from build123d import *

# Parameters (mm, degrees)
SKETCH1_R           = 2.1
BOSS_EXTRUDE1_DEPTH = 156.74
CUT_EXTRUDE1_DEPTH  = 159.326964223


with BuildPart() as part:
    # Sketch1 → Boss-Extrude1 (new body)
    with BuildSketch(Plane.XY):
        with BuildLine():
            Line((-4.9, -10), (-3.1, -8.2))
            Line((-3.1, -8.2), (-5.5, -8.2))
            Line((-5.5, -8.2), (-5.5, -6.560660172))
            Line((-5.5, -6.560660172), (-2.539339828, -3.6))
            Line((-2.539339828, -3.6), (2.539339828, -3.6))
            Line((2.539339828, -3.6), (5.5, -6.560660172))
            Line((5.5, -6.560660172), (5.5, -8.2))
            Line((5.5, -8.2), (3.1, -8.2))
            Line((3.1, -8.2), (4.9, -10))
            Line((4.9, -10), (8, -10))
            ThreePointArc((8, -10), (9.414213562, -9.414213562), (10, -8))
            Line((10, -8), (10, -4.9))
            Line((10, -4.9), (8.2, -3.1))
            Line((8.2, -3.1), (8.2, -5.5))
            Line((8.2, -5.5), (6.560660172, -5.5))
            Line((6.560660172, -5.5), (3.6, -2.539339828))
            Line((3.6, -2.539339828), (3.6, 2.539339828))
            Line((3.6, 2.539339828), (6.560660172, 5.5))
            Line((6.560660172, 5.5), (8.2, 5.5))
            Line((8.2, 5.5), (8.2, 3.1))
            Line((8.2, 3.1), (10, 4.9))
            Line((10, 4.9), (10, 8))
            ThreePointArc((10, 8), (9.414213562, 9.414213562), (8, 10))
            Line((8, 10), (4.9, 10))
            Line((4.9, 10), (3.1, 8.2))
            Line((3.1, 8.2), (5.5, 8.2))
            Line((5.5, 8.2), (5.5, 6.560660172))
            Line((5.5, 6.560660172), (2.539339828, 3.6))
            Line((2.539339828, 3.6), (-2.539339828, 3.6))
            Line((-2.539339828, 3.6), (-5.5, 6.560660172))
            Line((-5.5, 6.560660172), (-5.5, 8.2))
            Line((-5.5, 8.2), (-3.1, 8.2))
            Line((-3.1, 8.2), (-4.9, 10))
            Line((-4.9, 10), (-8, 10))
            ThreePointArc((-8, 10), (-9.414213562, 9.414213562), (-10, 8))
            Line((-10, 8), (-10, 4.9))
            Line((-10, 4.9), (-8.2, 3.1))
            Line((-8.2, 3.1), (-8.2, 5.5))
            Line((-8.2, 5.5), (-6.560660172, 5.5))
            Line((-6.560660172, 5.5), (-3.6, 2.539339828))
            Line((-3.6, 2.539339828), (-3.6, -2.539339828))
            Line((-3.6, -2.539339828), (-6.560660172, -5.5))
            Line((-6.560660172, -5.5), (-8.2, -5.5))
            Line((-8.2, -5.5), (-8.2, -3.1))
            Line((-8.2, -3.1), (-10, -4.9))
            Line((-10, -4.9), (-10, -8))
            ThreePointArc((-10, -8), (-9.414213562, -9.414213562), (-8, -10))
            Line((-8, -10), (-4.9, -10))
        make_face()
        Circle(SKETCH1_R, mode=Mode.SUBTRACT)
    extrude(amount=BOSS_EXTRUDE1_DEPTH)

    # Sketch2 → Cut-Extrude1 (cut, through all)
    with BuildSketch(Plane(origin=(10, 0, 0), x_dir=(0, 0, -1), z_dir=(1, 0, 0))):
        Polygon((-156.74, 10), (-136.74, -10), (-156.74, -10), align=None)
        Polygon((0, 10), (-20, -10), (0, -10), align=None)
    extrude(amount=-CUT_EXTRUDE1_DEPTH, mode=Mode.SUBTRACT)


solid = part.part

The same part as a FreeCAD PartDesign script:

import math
import FreeCAD as App
import Part
import Sketcher

V = App.Vector


def add_polygon(sketch, points):
    """Adds a closed chain of lines whose ends are joined by coincident constraints."""
    first, n = sketch.GeometryCount, len(points)
    for a, b in zip(points, points[1:] + points[:1]):
        sketch.addGeometry(Part.LineSegment(App.Vector(*a, 0), App.Vector(*b, 0)), False)
    for i in range(n):
        sketch.addConstraint(Sketcher.Constraint("Coincident", first + i, 2, first + (i + 1) % n, 1))

doc = App.newDocument("Part")
body = doc.addObject("PartDesign::Body", "Body")

sketch1 = body.newObject("Sketcher::SketchObject", "Sketch")
sketch1.AttachmentSupport = (doc.getObject("XY_Plane"), [""])
sketch1.MapMode = "FlatFace"
sketch1.addGeometry(Part.LineSegment(V(-4.9, -10, 0), V(-3.1, -8.2, 0)), False)
sketch1.addGeometry(Part.LineSegment(V(-3.1, -8.2, 0), V(-5.5, -8.2, 0)), False)
sketch1.addGeometry(Part.LineSegment(V(-5.5, -8.2, 0), V(-5.5, -6.6, 0)), False)
sketch1.addGeometry(Part.LineSegment(V(-5.5, -6.6, 0), V(-2.5, -3.6, 0)), False)
sketch1.addGeometry(Part.LineSegment(V(-2.5, -3.6, 0), V(2.5, -3.6, 0)), False)
sketch1.addGeometry(Part.LineSegment(V(2.5, -3.6, 0), V(5.5, -6.6, 0)), False)
sketch1.addGeometry(Part.LineSegment(V(5.5, -6.6, 0), V(5.5, -8.2, 0)), False)
sketch1.addGeometry(Part.LineSegment(V(5.5, -8.2, 0), V(3.1, -8.2, 0)), False)
sketch1.addGeometry(Part.LineSegment(V(3.1, -8.2, 0), V(4.9, -10, 0)), False)
sketch1.addGeometry(Part.LineSegment(V(4.9, -10, 0), V(8, -10, 0)), False)
sketch1.addGeometry(Part.ArcOfCircle(Part.Circle(V(8, -8, 0), V(0, 0, 1), 2), math.radians(-90), math.radians(0)), False)
sketch1.addGeometry(Part.LineSegment(V(10, -8, 0), V(10, -4.9, 0)), False)
sketch1.addGeometry(Part.LineSegment(V(10, -4.9, 0), V(8.2, -3.1, 0)), False)
sketch1.addGeometry(Part.LineSegment(V(8.2, -3.1, 0), V(8.2, -5.5, 0)), False)
sketch1.addGeometry(Part.LineSegment(V(8.2, -5.5, 0), V(6.6, -5.5, 0)), False)
sketch1.addGeometry(Part.LineSegment(V(6.6, -5.5, 0), V(3.6, -2.5, 0)), False)
sketch1.addGeometry(Part.LineSegment(V(3.6, -2.5, 0), V(3.6, 2.5, 0)), False)
sketch1.addGeometry(Part.LineSegment(V(3.6, 2.5, 0), V(6.6, 5.5, 0)), False)
sketch1.addGeometry(Part.LineSegment(V(6.6, 5.5, 0), V(8.2, 5.5, 0)), False)
sketch1.addGeometry(Part.LineSegment(V(8.2, 5.5, 0), V(8.2, 3.1, 0)), False)
sketch1.addGeometry(Part.LineSegment(V(8.2, 3.1, 0), V(10, 4.9, 0)), False)
sketch1.addGeometry(Part.LineSegment(V(10, 4.9, 0), V(10, 8, 0)), False)
sketch1.addGeometry(Part.ArcOfCircle(Part.Circle(V(8, 8, 0), V(0, 0, 1), 2), math.radians(0), math.radians(90)), False)
sketch1.addGeometry(Part.LineSegment(V(8, 10, 0), V(4.9, 10, 0)), False)
sketch1.addGeometry(Part.LineSegment(V(4.9, 10, 0), V(3.1, 8.2, 0)), False)
sketch1.addGeometry(Part.LineSegment(V(3.1, 8.2, 0), V(5.5, 8.2, 0)), False)
sketch1.addGeometry(Part.LineSegment(V(5.5, 8.2, 0), V(5.5, 6.6, 0)), False)
sketch1.addGeometry(Part.LineSegment(V(5.5, 6.6, 0), V(2.5, 3.6, 0)), False)
sketch1.addGeometry(Part.LineSegment(V(2.5, 3.6, 0), V(-2.5, 3.6, 0)), False)
sketch1.addGeometry(Part.LineSegment(V(-2.5, 3.6, 0), V(-5.5, 6.6, 0)), False)
sketch1.addGeometry(Part.LineSegment(V(-5.5, 6.6, 0), V(-5.5, 8.2, 0)), False)
sketch1.addGeometry(Part.LineSegment(V(-5.5, 8.2, 0), V(-3.1, 8.2, 0)), False)
sketch1.addGeometry(Part.LineSegment(V(-3.1, 8.2, 0), V(-4.9, 10, 0)), False)
sketch1.addGeometry(Part.LineSegment(V(-4.9, 10, 0), V(-8, 10, 0)), False)
sketch1.addGeometry(Part.ArcOfCircle(Part.Circle(V(-8, 8, 0), V(0, 0, 1), 2), math.radians(90), math.radians(180)), False)
sketch1.addGeometry(Part.LineSegment(V(-10, 8, 0), V(-10, 4.9, 0)), False)
sketch1.addGeometry(Part.LineSegment(V(-10, 4.9, 0), V(-8.2, 3.1, 0)), False)
sketch1.addGeometry(Part.LineSegment(V(-8.2, 3.1, 0), V(-8.2, 5.5, 0)), False)
sketch1.addGeometry(Part.LineSegment(V(-8.2, 5.5, 0), V(-6.6, 5.5, 0)), False)
sketch1.addGeometry(Part.LineSegment(V(-6.6, 5.5, 0), V(-3.6, 2.5, 0)), False)
sketch1.addGeometry(Part.LineSegment(V(-3.6, 2.5, 0), V(-3.6, -2.5, 0)), False)
sketch1.addGeometry(Part.LineSegment(V(-3.6, -2.5, 0), V(-6.6, -5.5, 0)), False)
sketch1.addGeometry(Part.LineSegment(V(-6.6, -5.5, 0), V(-8.2, -5.5, 0)), False)
sketch1.addGeometry(Part.LineSegment(V(-8.2, -5.5, 0), V(-8.2, -3.1, 0)), False)
sketch1.addGeometry(Part.LineSegment(V(-8.2, -3.1, 0), V(-10, -4.9, 0)), False)
sketch1.addGeometry(Part.LineSegment(V(-10, -4.9, 0), V(-10, -8, 0)), False)
sketch1.addGeometry(Part.ArcOfCircle(Part.Circle(V(-8, -8, 0), V(0, 0, 1), 2), math.radians(-180), math.radians(-90)), False)
sketch1.addGeometry(Part.LineSegment(V(-8, -10, 0), V(-4.9, -10, 0)), False)
sketch1.addGeometry(Part.Circle(V(0, 0, 0), V(0, 0, 1), 2.1), False)
sketch1.addConstraint(Sketcher.Constraint("Coincident", 0, 2, 1, 1))
sketch1.addConstraint(Sketcher.Constraint("Coincident", 1, 2, 2, 1))
sketch1.addConstraint(Sketcher.Constraint("Coincident", 2, 2, 3, 1))
sketch1.addConstraint(Sketcher.Constraint("Coincident", 3, 2, 4, 1))
sketch1.addConstraint(Sketcher.Constraint("Coincident", 4, 2, 5, 1))
sketch1.addConstraint(Sketcher.Constraint("Coincident", 5, 2, 6, 1))
sketch1.addConstraint(Sketcher.Constraint("Coincident", 6, 2, 7, 1))
sketch1.addConstraint(Sketcher.Constraint("Coincident", 7, 2, 8, 1))
sketch1.addConstraint(Sketcher.Constraint("Coincident", 8, 2, 9, 1))
sketch1.addConstraint(Sketcher.Constraint("Tangent", 9, 2, 10, 1))
sketch1.addConstraint(Sketcher.Constraint("Tangent", 10, 2, 11, 1))
sketch1.addConstraint(Sketcher.Constraint("Coincident", 11, 2, 12, 1))
sketch1.addConstraint(Sketcher.Constraint("Coincident", 12, 2, 13, 1))
sketch1.addConstraint(Sketcher.Constraint("Coincident", 13, 2, 14, 1))
sketch1.addConstraint(Sketcher.Constraint("Coincident", 14, 2, 15, 1))
sketch1.addConstraint(Sketcher.Constraint("Coincident", 15, 2, 16, 1))
sketch1.addConstraint(Sketcher.Constraint("Coincident", 16, 2, 17, 1))
sketch1.addConstraint(Sketcher.Constraint("Coincident", 17, 2, 18, 1))
sketch1.addConstraint(Sketcher.Constraint("Coincident", 18, 2, 19, 1))
sketch1.addConstraint(Sketcher.Constraint("Coincident", 19, 2, 20, 1))
sketch1.addConstraint(Sketcher.Constraint("Coincident", 20, 2, 21, 1))
sketch1.addConstraint(Sketcher.Constraint("Tangent", 21, 2, 22, 1))
sketch1.addConstraint(Sketcher.Constraint("Tangent", 22, 2, 23, 1))
sketch1.addConstraint(Sketcher.Constraint("Coincident", 23, 2, 24, 1))
sketch1.addConstraint(Sketcher.Constraint("Coincident", 24, 2, 25, 1))
sketch1.addConstraint(Sketcher.Constraint("Coincident", 25, 2, 26, 1))
sketch1.addConstraint(Sketcher.Constraint("Coincident", 26, 2, 27, 1))
sketch1.addConstraint(Sketcher.Constraint("Coincident", 27, 2, 28, 1))
sketch1.addConstraint(Sketcher.Constraint("Coincident", 28, 2, 29, 1))
sketch1.addConstraint(Sketcher.Constraint("Coincident", 29, 2, 30, 1))
sketch1.addConstraint(Sketcher.Constraint("Coincident", 30, 2, 31, 1))
sketch1.addConstraint(Sketcher.Constraint("Coincident", 31, 2, 32, 1))
sketch1.addConstraint(Sketcher.Constraint("Coincident", 32, 2, 33, 1))
sketch1.addConstraint(Sketcher.Constraint("Tangent", 33, 2, 34, 1))
sketch1.addConstraint(Sketcher.Constraint("Tangent", 34, 2, 35, 1))
sketch1.addConstraint(Sketcher.Constraint("Coincident", 35, 2, 36, 1))
sketch1.addConstraint(Sketcher.Constraint("Coincident", 36, 2, 37, 1))
sketch1.addConstraint(Sketcher.Constraint("Coincident", 37, 2, 38, 1))
sketch1.addConstraint(Sketcher.Constraint("Coincident", 38, 2, 39, 1))
sketch1.addConstraint(Sketcher.Constraint("Coincident", 39, 2, 40, 1))
sketch1.addConstraint(Sketcher.Constraint("Coincident", 40, 2, 41, 1))
sketch1.addConstraint(Sketcher.Constraint("Coincident", 41, 2, 42, 1))
sketch1.addConstraint(Sketcher.Constraint("Coincident", 42, 2, 43, 1))
sketch1.addConstraint(Sketcher.Constraint("Coincident", 43, 2, 44, 1))
sketch1.addConstraint(Sketcher.Constraint("Coincident", 44, 2, 45, 1))
sketch1.addConstraint(Sketcher.Constraint("Tangent", 45, 2, 46, 1))
sketch1.addConstraint(Sketcher.Constraint("Tangent", 46, 2, 47, 1))
sketch1.addConstraint(Sketcher.Constraint("Coincident", 47, 2, 0, 1))
sketch1.addConstraint(Sketcher.Constraint("Horizontal", 1))
sketch1.addConstraint(Sketcher.Constraint("Vertical", 2))
sketch1.addConstraint(Sketcher.Constraint("Horizontal", 4))
sketch1.addConstraint(Sketcher.Constraint("Vertical", 6))
sketch1.addConstraint(Sketcher.Constraint("Horizontal", 7))
sketch1.addConstraint(Sketcher.Constraint("Horizontal", 9))
sketch1.addConstraint(Sketcher.Constraint("Vertical", 11))
sketch1.addConstraint(Sketcher.Constraint("Vertical", 13))
sketch1.addConstraint(Sketcher.Constraint("Horizontal", 14))
sketch1.addConstraint(Sketcher.Constraint("Vertical", 16))
sketch1.addConstraint(Sketcher.Constraint("Horizontal", 18))
sketch1.addConstraint(Sketcher.Constraint("Vertical", 19))
sketch1.addConstraint(Sketcher.Constraint("Vertical", 21))
sketch1.addConstraint(Sketcher.Constraint("Horizontal", 23))
sketch1.addConstraint(Sketcher.Constraint("Horizontal", 25))
sketch1.addConstraint(Sketcher.Constraint("Vertical", 26))
sketch1.addConstraint(Sketcher.Constraint("Horizontal", 28))
sketch1.addConstraint(Sketcher.Constraint("Vertical", 30))
sketch1.addConstraint(Sketcher.Constraint("Horizontal", 31))
sketch1.addConstraint(Sketcher.Constraint("Horizontal", 33))
sketch1.addConstraint(Sketcher.Constraint("Vertical", 35))
sketch1.addConstraint(Sketcher.Constraint("Vertical", 37))
sketch1.addConstraint(Sketcher.Constraint("Horizontal", 38))
sketch1.addConstraint(Sketcher.Constraint("Vertical", 40))
sketch1.addConstraint(Sketcher.Constraint("Horizontal", 42))
sketch1.addConstraint(Sketcher.Constraint("Vertical", 43))
sketch1.addConstraint(Sketcher.Constraint("Vertical", 45))
sketch1.addConstraint(Sketcher.Constraint("Horizontal", 47))
sketch1.addConstraint(Sketcher.Constraint("Coincident", 48, 3, -1, 1))
sketch1.addConstraint(Sketcher.Constraint("Equal", 10, 22))
sketch1.addConstraint(Sketcher.Constraint("Equal", 22, 34))
sketch1.addConstraint(Sketcher.Constraint("Equal", 34, 46))
sketch1.addConstraint(Sketcher.Constraint("Symmetric", 10, 3, 34, 3, -1, 1))
sketch1.addConstraint(Sketcher.Constraint("Symmetric", 22, 3, 46, 3, -1, 1))
sketch1.addConstraint(Sketcher.Constraint("Symmetric", 0, 2, 24, 2, -1, 1))
sketch1.addConstraint(Sketcher.Constraint("Symmetric", 2, 2, 26, 2, -1, 1))
sketch1.addConstraint(Sketcher.Constraint("Symmetric", 3, 2, 27, 2, -1, 1))
sketch1.addConstraint(Sketcher.Constraint("Symmetric", 5, 2, 29, 2, -1, 1))
sketch1.addConstraint(Sketcher.Constraint("Symmetric", 7, 2, 31, 2, -1, 1))
sketch1.addConstraint(Sketcher.Constraint("Symmetric", 12, 2, 36, 2, -1, 1))
sketch1.addConstraint(Sketcher.Constraint("Symmetric", 14, 2, 38, 2, -1, 1))
sketch1.addConstraint(Sketcher.Constraint("Symmetric", 15, 2, 39, 2, -1, 1))
sketch1.addConstraint(Sketcher.Constraint("Symmetric", 17, 2, 41, 2, -1, 1))
sketch1.addConstraint(Sketcher.Constraint("Symmetric", 19, 2, 43, 2, -1, 1))
sketch1.addConstraint(Sketcher.Constraint("Symmetric", 22, 3, 34, 3, -2))
sketch1.addConstraint(Sketcher.Constraint("Symmetric", 2, 2, 5, 2, -2))
sketch1.addConstraint(Sketcher.Constraint("Symmetric", 0, 2, 7, 2, -2))
sketch1.addConstraint(Sketcher.Constraint("Symmetric", 19, 2, 36, 2, -2))
sketch1.addConstraint(Sketcher.Constraint("Symmetric", 17, 2, 38, 2, -2))
sketch1.addConstraint(Sketcher.Constraint("Parallel", 0, 3))
sketch1.addConstraint(Sketcher.Constraint("Perpendicular", 3, 5))
sketch1.addConstraint(Sketcher.Constraint("Parallel", 5, 8))
sketch1.addConstraint(Sketcher.Constraint("Parallel", 8, 12))
sketch1.addConstraint(Sketcher.Constraint("Parallel", 12, 15))
sketch1.addConstraint(Sketcher.Constraint("Perpendicular", 15, 17))
sketch1.addConstraint(Sketcher.Constraint("Parallel", 17, 20))
sketch1.addConstraint(Sketcher.Constraint("Parallel", 20, 24))
sketch1.addConstraint(Sketcher.Constraint("Perpendicular", 27, 29))
sketch1.addConstraint(Sketcher.Constraint("Parallel", 29, 32))
sketch1.addConstraint(Sketcher.Constraint("Parallel", 32, 36))
sketch1.addConstraint(Sketcher.Constraint("Perpendicular", 39, 41))
sketch1.addConstraint(Sketcher.Constraint("Parallel", 41, 44))
sketch1.addConstraint(Sketcher.Constraint("Horizontal", 20, 2, 35, 2))
sketch1.addConstraint(Sketcher.Constraint("Equal", 42, 2))
sketch1.addConstraint(Sketcher.Constraint("Equal", 47, 11))
sketch1.addConstraint(Sketcher.Constraint("Equal", 31, 13))
sketch1.addConstraint(Sketcher.Constraint("Equal", 28, 16))
sketch1.addConstraint(Sketcher.Constraint("Equal", 8, 12))
sketch1.addConstraint(Sketcher.Constraint("Equal", 5, 15))
sketch1.addConstraint(Sketcher.Constraint("Radius", 10, 2.0))
sketch1.addConstraint(Sketcher.Constraint("Diameter", 48, 4.2))
sketch1.addConstraint(Sketcher.Constraint("DistanceX", 1, 2, 1, 1, 2.4))
sketch1.addConstraint(Sketcher.Constraint("DistanceX", 9, 1, 9, 2, 3.1))
sketch1.addConstraint(Sketcher.Constraint("DistanceX", -1, 1, 10, 3, 8.0))
sketch1.addConstraint(Sketcher.Constraint("DistanceX", 0, 2, -1, 1, 3.1))
sketch1.addConstraint(Sketcher.Constraint("DistanceY", 3, 2, -1, 1, 3.6))
sketch1.addConstraint(Sketcher.Constraint("DistanceX", 4, 1, 4, 2, 5.07868))
pad1 = body.newObject("PartDesign::Pad", "Pad")
pad1.Profile = sketch1
pad1.Length = 156.74

sketch2 = body.newObject("Sketcher::SketchObject", "Sketch001")
sketch2.AttachmentSupport = (doc.getObject("YZ_Plane"), [""])
sketch2.MapMode = "FlatFace"
sketch2.AttachmentOffset = App.Placement(V(0, 0, 10), App.Rotation())
add_polygon(sketch2, [(-10, 137), (10, 157), (-10, 157)])
add_polygon(sketch2, [(10, 0), (-10, 20), (-10, 0)])
sketch2.addConstraint(Sketcher.Constraint("Horizontal", 1))
sketch2.addConstraint(Sketcher.Constraint("Vertical", 2))
sketch2.addConstraint(Sketcher.Constraint("Vertical", 4))
sketch2.addConstraint(Sketcher.Constraint("Horizontal", 5))
sketch2.addConstraint(Sketcher.Constraint("Symmetric", 4, 2, 5, 2, -1, 1))
sketch2.addConstraint(Sketcher.Constraint("Perpendicular", 0, 3))
sketch2.addConstraint(Sketcher.Constraint("Vertical", 2, 2, 3, 2))
sketch2.addConstraint(Sketcher.Constraint("Vertical", 0, 2, 5, 2))
sketch2.addConstraint(Sketcher.Constraint("Equal", 5, 2))
sketch2.addConstraint(Sketcher.Constraint("DistanceX", 1, 2, 1, 1, 20.0))
sketch2.addConstraint(Sketcher.Constraint("DistanceY", -1, 1, 0, 2, 156.74))
pocket1 = body.newObject("PartDesign::Pocket", "Pocket")
pocket1.Profile = sketch2
pocket1.Type = "ThroughAll"

doc.recompute()
